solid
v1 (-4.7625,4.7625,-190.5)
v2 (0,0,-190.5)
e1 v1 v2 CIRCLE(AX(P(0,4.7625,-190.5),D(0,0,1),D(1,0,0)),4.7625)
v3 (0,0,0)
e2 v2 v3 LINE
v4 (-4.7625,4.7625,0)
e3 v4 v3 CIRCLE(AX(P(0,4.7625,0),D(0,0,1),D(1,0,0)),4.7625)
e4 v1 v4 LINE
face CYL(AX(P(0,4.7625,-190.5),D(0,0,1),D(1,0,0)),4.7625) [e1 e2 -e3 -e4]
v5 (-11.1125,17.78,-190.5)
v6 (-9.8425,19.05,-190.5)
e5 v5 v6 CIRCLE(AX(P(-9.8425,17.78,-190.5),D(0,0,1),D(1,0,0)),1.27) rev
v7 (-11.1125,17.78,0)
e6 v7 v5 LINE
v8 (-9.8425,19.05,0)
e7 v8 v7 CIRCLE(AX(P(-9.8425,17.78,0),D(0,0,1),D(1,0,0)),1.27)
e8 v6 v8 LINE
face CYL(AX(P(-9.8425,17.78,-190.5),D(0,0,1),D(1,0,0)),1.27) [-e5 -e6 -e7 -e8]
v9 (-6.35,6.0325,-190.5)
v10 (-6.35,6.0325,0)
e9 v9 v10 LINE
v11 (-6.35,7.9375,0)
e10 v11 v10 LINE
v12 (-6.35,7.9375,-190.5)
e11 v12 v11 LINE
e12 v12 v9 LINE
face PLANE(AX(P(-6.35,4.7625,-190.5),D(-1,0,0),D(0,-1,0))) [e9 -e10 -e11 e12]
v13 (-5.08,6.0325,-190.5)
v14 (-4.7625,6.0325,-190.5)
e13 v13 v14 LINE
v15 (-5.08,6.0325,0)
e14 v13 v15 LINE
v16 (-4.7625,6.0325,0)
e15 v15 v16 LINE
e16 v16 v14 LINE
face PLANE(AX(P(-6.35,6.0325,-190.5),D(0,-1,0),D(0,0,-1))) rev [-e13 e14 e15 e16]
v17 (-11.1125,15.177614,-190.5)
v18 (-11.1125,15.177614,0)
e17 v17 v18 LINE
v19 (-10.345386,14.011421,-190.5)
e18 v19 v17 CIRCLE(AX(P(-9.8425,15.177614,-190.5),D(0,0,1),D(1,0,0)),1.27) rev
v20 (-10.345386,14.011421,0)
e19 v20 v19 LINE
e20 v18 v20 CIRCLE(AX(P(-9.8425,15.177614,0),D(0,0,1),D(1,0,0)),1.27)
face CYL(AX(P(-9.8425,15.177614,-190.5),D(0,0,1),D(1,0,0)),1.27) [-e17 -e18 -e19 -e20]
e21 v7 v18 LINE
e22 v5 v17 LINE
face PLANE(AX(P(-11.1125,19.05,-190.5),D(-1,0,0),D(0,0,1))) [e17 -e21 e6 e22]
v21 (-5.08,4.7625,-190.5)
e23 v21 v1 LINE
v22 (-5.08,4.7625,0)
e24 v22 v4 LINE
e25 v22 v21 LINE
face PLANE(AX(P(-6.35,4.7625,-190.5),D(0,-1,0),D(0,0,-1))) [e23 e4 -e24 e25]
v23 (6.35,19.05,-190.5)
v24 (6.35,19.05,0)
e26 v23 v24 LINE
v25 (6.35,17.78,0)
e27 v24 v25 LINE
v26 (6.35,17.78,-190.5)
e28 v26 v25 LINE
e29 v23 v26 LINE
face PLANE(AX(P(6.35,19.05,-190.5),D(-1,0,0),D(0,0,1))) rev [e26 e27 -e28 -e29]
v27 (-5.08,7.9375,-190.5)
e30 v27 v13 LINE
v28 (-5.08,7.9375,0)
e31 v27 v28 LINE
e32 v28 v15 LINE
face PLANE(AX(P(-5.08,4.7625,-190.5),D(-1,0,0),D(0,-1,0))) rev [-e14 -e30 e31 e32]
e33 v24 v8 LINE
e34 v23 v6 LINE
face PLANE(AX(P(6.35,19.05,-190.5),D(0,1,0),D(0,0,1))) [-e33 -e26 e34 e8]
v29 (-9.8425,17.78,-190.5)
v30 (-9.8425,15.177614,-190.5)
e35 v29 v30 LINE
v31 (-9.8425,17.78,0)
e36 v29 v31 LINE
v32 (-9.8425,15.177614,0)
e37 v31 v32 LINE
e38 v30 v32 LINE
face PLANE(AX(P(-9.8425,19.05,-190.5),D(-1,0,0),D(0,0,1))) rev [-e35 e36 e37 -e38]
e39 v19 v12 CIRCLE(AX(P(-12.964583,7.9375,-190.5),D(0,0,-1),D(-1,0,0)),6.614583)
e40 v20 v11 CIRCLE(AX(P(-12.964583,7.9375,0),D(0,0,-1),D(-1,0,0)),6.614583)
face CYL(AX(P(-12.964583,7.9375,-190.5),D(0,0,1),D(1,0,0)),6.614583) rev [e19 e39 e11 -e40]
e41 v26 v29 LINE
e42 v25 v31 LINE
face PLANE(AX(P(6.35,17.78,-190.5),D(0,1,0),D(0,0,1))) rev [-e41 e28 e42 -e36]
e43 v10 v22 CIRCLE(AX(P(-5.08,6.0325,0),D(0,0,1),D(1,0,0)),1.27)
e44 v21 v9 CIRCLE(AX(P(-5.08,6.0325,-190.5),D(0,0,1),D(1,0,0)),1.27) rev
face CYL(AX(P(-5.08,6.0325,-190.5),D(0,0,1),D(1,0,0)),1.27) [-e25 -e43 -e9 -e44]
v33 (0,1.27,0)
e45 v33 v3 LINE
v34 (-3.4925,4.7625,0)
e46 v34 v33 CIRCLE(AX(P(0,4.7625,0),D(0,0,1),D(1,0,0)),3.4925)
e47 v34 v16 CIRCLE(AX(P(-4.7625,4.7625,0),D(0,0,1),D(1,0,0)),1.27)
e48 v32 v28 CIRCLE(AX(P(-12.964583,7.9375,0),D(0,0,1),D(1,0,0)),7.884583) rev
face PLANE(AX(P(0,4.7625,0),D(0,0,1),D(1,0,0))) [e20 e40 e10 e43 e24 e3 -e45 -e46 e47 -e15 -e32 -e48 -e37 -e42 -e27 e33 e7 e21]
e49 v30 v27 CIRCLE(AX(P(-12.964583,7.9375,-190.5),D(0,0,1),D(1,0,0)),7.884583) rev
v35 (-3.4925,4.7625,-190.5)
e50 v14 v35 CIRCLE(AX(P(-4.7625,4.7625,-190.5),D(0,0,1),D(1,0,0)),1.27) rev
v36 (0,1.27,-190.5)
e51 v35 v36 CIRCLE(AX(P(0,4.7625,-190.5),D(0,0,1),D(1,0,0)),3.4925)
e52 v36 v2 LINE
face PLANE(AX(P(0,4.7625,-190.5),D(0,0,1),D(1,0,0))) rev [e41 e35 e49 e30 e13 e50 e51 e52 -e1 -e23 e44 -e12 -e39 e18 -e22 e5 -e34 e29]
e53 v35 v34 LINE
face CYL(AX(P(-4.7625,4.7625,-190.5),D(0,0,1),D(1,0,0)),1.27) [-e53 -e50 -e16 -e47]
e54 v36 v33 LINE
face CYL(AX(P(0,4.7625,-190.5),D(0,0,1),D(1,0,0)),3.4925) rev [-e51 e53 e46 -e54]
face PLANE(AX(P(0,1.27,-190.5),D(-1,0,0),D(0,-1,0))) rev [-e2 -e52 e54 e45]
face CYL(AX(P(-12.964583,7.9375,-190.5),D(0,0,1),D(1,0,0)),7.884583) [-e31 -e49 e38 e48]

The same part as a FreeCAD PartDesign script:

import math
import FreeCAD as App
import Part
import Sketcher
Q = App.Units.Quantity


def edges_at(feature, points):
    """Names of the edges that pass closest to the given points."""
    edges = feature.Shape.Edges
    near = lambda p: min(range(len(edges)), key=lambda i: edges[i].distToShape(Part.Vertex(*p))[0])
    return sorted({f"Edge{near(p) + 1}" for p in points})

doc = App.newDocument("Part")
params = doc.addObject("Spreadsheet::Sheet", "Params")
for row, (alias, value) in enumerate([
    ("sketch1_radius", "0.1875 in"),
    ("sketch1_height", "0.05 in"),
    ("sketch1_width", "0.6875 in"),
    ("sketch1_width2", "0.0625 in"),
    ("sketch1_height2", "0.1875 in"),
    ("pad1_length", "7.5 in"),
    ("fillet_radius", "0.05 in"),
], start=1):
    params.set(f"A{row}", alias)
    params.set(f"B{row}", "=" + value)
    params.setAlias(f"B{row}", alias)

body = doc.addObject("PartDesign::Body", "Body")

# Sketch on XY plane
sketch1 = body.newObject("Sketcher::SketchObject", "Sketch")
sketch1.AttachmentSupport = (doc.getObject("XY_Plane"), [""])
sketch1.MapMode = "FlatFace"
sketch1.addGeometry([
    Part.LineSegment(App.Vector(6.3, 19.1, 0), App.Vector(-11.1, 19.1, 0)),  # 0
    Part.LineSegment(App.Vector(-11.1, 19.1, 0), App.Vector(-11.1, 14.3, 0)),  # 1
    Part.ArcOfCircle(Part.Circle(App.Vector(-13, 7.9, 0), App.Vector(0, 0, 1), 6.6), math.radians(0), math.radians(74)),  # 2
    Part.LineSegment(App.Vector(-6.3, 7.9, 0), App.Vector(-6.3, 4.8, 0)),  # 3
    Part.LineSegment(App.Vector(-6.3, 4.8, 0), App.Vector(-4.8, 4.8, 0)),  # 4
    Part.ArcOfCircle(Part.Circle(App.Vector(0, 4.8, 0), App.Vector(0, 0, 1), 4.8), math.radians(-180), math.radians(-90)),  # 5
    Part.LineSegment(App.Vector(0, 0, 0), App.Vector(0, 1.3, 0)),  # 6
    Part.ArcOfCircle(Part.Circle(App.Vector(0, 4.8, 0), App.Vector(0, 0, 1), 3.5), math.radians(159), math.radians(270)),  # 7
    Part.LineSegment(App.Vector(-3.3, 6, 0), App.Vector(-5.1, 6, 0)),  # 8
    Part.LineSegment(App.Vector(-5.1, 6, 0), App.Vector(-5.1, 7.9, 0)),  # 9
    Part.ArcOfCircle(Part.Circle(App.Vector(-13, 7.9, 0), App.Vector(0, 0, 1), 7.9), math.radians(0), math.radians(67)),  # 10
    Part.LineSegment(App.Vector(-9.8, 15.2, 0), App.Vector(-9.8, 17.8, 0)),  # 11
    Part.LineSegment(App.Vector(-9.8, 17.8, 0), App.Vector(6.3, 17.8, 0)),  # 12
    Part.LineSegment(App.Vector(6.3, 17.8, 0), App.Vector(6.3, 19.1, 0)),  # 13
], False)
sketch1.addConstraint([
    Sketcher.Constraint("Coincident", 0, 2, 1, 1),
    Sketcher.Constraint("Coincident", 1, 2, 2, 2),
    Sketcher.Constraint("Tangent", 2, 1, 3, 1),
    Sketcher.Constraint("Coincident", 3, 2, 4, 1),
    Sketcher.Constraint("Coincident", 4, 2, 5, 1),
    Sketcher.Constraint("Coincident", 5, 2, 6, 1),
    Sketcher.Constraint("Coincident", 6, 2, 7, 2),
    Sketcher.Constraint("Coincident", 7, 1, 8, 1),
    Sketcher.Constraint("Coincident", 8, 2, 9, 1),
    Sketcher.Constraint("Tangent", 9, 2, 10, 1),
    Sketcher.Constraint("Coincident", 10, 2, 11, 1),
    Sketcher.Constraint("Coincident", 11, 2, 12, 1),
    Sketcher.Constraint("Coincident", 12, 2, 13, 1),
    Sketcher.Constraint("Coincident", 13, 2, 0, 1),
    Sketcher.Constraint("Horizontal", 0),
    Sketcher.Constraint("Vertical", 1),
    Sketcher.Constraint("Vertical", 3),
    Sketcher.Constraint("Horizontal", 4),
    Sketcher.Constraint("Vertical", 6),
    Sketcher.Constraint("Horizontal", 8),
    Sketcher.Constraint("Vertical", 9),
    Sketcher.Constraint("Vertical", 11),
    Sketcher.Constraint("Horizontal", 12),
    Sketcher.Constraint("Vertical", 13),
    Sketcher.Constraint("Coincident", 5, 2, -1, 1),
    Sketcher.Constraint("Coincident", 7, 3, 5, 3),
    Sketcher.Constraint("Coincident", 10, 3, 2, 3),
    Sketcher.Constraint("PointOnObject", 5, 3, -2),
    Sketcher.Constraint("Horizontal", 7, 3, 3, 2),
    Sketcher.Constraint("Equal", 6, 13),
    Sketcher.Constraint("Radius", 5, Q("0.1875 in")),
    Sketcher.Constraint("DistanceY", 6, 1, 6, 2, Q("0.05 in")),
    Sketcher.Constraint("DistanceX", 8, 2, -1, 1, Q("0.2 in")),
    Sketcher.Constraint("DistanceY", -1, 1, 11, 2, Q("0.7 in")),
    Sketcher.Constraint("DistanceX", 2, 1, 12, 2, Q("0.5 in")),
    Sketcher.Constraint("DistanceX", 0, 2, 0, 1, Q("0.6875 in")),
    Sketcher.Constraint("DistanceX", 4, 1, 4, 2, Q("0.0625 in")),
    Sketcher.Constraint("DistanceY", 1, 2, 1, 1, Q("0.1875 in")),
    Sketcher.Constraint("DistanceY", 3, 2, 3, 1, Q("0.125 in")),
    Sketcher.Constraint("DistanceY", 9, 1, 9, 2, Q("0.075 in")),
    Sketcher.Constraint("DistanceX", 1, 2, 10, 2, Q("0.05 in")),
])
sketch1.setExpression("Constraints[30]", "Params.sketch1_radius")
sketch1.setExpression("Constraints[31]", "Params.sketch1_height")
sketch1.setExpression("Constraints[35]", "Params.sketch1_width")
sketch1.setExpression("Constraints[36]", "Params.sketch1_width2")
sketch1.setExpression("Constraints[37]", "Params.sketch1_height2")
pad1 = body.newObject("PartDesign::Pad", "Pad")
pad1.Profile = sketch1
pad1.setExpression("Length", "Params.pad1_length")
pad1.Reversed = True
doc.recompute()

fillet = body.newObject("PartDesign::Fillet", "Fillet")
fillet.Base = (pad1, edges_at(pad1, [
    (-6.35, 4.763, -95.25),
    (-11.113, 14.287, -95.25),
    (-11.113, 19.05, -95.25),
    (-3.253, 6.032, -95.25),
]))
fillet.setExpression("Radius", "Params.fillet_radius")

doc.recompute()
